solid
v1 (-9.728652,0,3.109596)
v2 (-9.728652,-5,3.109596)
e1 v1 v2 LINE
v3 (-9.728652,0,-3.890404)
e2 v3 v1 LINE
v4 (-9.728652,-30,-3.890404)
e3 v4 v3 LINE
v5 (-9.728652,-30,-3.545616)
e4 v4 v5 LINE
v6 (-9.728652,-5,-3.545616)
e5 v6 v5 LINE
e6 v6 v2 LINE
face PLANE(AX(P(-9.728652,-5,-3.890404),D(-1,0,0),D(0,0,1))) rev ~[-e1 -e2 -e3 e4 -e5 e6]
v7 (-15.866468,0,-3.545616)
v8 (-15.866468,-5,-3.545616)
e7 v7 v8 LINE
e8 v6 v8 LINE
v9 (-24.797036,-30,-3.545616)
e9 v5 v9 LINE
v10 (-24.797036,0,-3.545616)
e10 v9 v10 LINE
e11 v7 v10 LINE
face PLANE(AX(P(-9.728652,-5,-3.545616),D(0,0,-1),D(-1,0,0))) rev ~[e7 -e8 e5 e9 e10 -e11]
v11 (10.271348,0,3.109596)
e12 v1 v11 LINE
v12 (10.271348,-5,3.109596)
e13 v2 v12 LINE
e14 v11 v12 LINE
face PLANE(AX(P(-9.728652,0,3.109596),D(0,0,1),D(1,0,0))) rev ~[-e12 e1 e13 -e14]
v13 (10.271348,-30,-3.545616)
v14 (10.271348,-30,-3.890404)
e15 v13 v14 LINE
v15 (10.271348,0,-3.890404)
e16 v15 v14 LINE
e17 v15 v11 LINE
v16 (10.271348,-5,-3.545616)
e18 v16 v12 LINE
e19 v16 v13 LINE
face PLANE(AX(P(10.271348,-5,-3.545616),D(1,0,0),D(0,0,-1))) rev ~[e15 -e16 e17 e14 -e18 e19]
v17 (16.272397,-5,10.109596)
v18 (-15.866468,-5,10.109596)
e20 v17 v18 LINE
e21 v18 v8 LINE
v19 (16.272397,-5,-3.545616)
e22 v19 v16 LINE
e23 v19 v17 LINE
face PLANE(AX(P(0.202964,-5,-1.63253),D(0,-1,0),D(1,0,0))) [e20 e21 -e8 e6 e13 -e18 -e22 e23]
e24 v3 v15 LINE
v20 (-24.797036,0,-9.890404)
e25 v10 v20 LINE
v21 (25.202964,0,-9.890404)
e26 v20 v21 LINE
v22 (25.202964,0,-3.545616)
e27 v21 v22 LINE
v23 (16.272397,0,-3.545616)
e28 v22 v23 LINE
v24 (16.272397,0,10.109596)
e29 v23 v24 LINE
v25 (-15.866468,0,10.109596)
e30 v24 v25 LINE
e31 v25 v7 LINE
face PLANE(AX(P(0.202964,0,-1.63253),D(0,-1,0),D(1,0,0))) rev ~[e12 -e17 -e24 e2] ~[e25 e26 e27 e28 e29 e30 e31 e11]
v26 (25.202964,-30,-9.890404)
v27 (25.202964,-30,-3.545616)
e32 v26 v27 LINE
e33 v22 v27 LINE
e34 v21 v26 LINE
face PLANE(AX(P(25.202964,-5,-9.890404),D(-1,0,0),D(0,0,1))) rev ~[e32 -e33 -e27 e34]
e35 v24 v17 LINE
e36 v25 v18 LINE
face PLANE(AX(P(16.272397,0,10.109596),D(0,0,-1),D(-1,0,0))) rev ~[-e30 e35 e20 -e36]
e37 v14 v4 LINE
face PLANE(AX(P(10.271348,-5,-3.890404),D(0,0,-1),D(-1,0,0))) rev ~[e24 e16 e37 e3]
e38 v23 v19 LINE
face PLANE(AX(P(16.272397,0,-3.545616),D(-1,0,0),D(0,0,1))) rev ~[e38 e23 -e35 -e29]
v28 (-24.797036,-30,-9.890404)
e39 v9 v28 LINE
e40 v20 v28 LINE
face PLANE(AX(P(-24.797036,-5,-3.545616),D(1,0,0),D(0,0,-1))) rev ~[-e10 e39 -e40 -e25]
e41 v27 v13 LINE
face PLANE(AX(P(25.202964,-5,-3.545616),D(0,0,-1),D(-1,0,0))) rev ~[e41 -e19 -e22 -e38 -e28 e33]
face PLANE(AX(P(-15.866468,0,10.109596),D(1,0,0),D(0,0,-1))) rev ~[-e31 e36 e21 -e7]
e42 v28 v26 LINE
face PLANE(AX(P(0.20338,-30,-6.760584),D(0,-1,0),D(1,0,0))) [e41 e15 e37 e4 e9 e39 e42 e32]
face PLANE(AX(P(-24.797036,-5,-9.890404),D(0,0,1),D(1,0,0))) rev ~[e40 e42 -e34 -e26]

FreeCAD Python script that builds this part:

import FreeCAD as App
import Part
import Sketcher

V = App.Vector
Q = App.Units.Quantity


def add_polygon(sketch, points):
    """Adds a closed chain of lines whose ends are joined by coincident constraints."""
    first, n = sketch.GeometryCount, len(points)
    for a, b in zip(points, points[1:] + points[:1]):
        sketch.addGeometry(Part.LineSegment(App.Vector(*a, 0), App.Vector(*b, 0)), False)
    for i in range(n):
        sketch.addConstraint(Sketcher.Constraint("Coincident", first + i, 2, first + (i + 1) % n, 1))

doc = App.newDocument("Part")
params = doc.addObject("Spreadsheet::Sheet", "Params")
for row, (alias, value) in enumerate([
    ("sketch1_width", "50 mm"),
    ("sketch1_width2", "20 mm"),
    ("sketch1_height", "7 mm"),
    ("pad1_length", "5 mm"),
    ("sketch2_width", "50 mm"),
    ("sketch2_width2", "20 mm"),
    ("pad2_length", "25 mm"),
], start=1):
    params.set(f"A{row}", alias)
    params.set(f"B{row}", "=" + value)
    params.setAlias(f"B{row}", alias)

body = doc.addObject("PartDesign::Body", "Body")

sketch1 = doc.addObject("Sketcher::SketchObject", "Sketch")
body.addObject(sketch1)
sketch1.AttachmentSupport = (doc.XZ_Plane, [""])
sketch1.MapMode = "FlatFace"
add_polygon(sketch1, [(16, 10), (-16, 10), (-16, -4), (-25, -4), (-25, -10), (25, -10), (25, -4), (16, -4)])
add_polygon(sketch1, [(10, -4), (-10, -4), (-10, 3), (10, 3)])
sketch1.addConstraint([
    Sketcher.Constraint("Horizontal", 0),
    Sketcher.Constraint("Vertical", 1),
    Sketcher.Constraint("Horizontal", 2),
    Sketcher.Constraint("Vertical", 3),
    Sketcher.Constraint("Horizontal", 4),
    Sketcher.Constraint("Vertical", 5),
    Sketcher.Constraint("Horizontal", 6),
    Sketcher.Constraint("Vertical", 7),
    Sketcher.Constraint("Horizontal", 8),
    Sketcher.Constraint("Vertical", 9),
    Sketcher.Constraint("Horizontal", 10),
    Sketcher.Constraint("Vertical", 11),
    Sketcher.Constraint("Horizontal", 2, 2, 5, 2),
    Sketcher.Constraint("Equal", 2, 6),
    Sketcher.Constraint("DistanceX", 4, 1, 4, 2, Q("50 mm")),
    Sketcher.Constraint("DistanceX", 8, 2, 8, 1, Q("20 mm")),
    Sketcher.Constraint("DistanceY", 9, 1, 9, 2, Q("7 mm")),
    Sketcher.Constraint("DistanceY", 3, 2, 0, 2, Q("20 mm")),
    Sketcher.Constraint("DistanceY", 8, 2, 0, 2, Q("14 mm")),
    Sketcher.Constraint("DistanceY", 1, 2, 1, 1, Q("13.655212 mm")),
    Sketcher.Constraint("DistanceX", 0, 2, 0, 1, Q("32.138865 mm")),
    Sketcher.Constraint("DistanceX", 8, 2, 6, 2, Q("26.001049 mm")),
    Sketcher.Constraint("DistanceX", 0, 2, -1, 1, Q("15.866468 mm")),
    Sketcher.Constraint("DistanceY", -1, 1, 0, 2, Q("10.109596 mm")),
])
sketch1.setExpression("Constraints[26]", "Params.sketch1_width")
sketch1.setExpression("Constraints[27]", "Params.sketch1_width2")
sketch1.setExpression("Constraints[28]", "Params.sketch1_height")
pad1 = doc.addObject("PartDesign::Pad", "Pad")
body.addObject(pad1)
pad1.Profile = sketch1
pad1.setExpression("Length", "Params.pad1_length")

sketch2 = doc.addObject("Sketcher::SketchObject", "Sketch001")
body.addObject(sketch2)
sketch2.AttachmentSupport = (doc.XZ_Plane, [""])
sketch2.MapMode = "FlatFace"
sketch2.AttachmentOffset = App.Placement(V(0, 0, 5), App.Rotation())
add_polygon(sketch2, [(-24.8, -3.55), (-24.8, -9.89), (25.2, -9.89), (25.2, -3.55), (10.27, -3.55), (10.27, -3.89), (-9.73, -3.89), (-9.73, -3.55)])
sketch2.addConstraint([
    Sketcher.Constraint("Vertical", 0),
    Sketcher.Constraint("Horizontal", 1),
    Sketcher.Constraint("Vertical", 2),
    Sketcher.Constraint("Horizontal", 3),
    Sketcher.Constraint("Vertical", 4),
    Sketcher.Constraint("Horizontal", 5),
    Sketcher.Constraint("Vertical", 6),
    Sketcher.Constraint("Horizontal", 7),
    Sketcher.Constraint("Horizontal", 3, 2, 6, 2),
    Sketcher.Constraint("DistanceX", 1, 1, 1, 2, Q("50 mm")),
    Sketcher.Constraint("DistanceX", 5, 2, 5, 1, Q("20 mm")),
    Sketcher.Constraint("DistanceY", 1, 2, 4, 2, Q("6 mm")),
    Sketcher.Constraint("DistanceY", 0, 2, 0, 1, Q("6.344788 mm")),
    Sketcher.Constraint("DistanceX", 3, 2, 3, 1, Q("14.931616 mm")),
    Sketcher.Constraint("DistanceX", 0, 2, -1, 1, Q("24.797036 mm")),
    Sketcher.Constraint("DistanceY", 0, 2, -1, 1, Q("9.890404 mm")),
])
sketch2.setExpression("Constraints[17]", "Params.sketch2_width")
sketch2.setExpression("Constraints[18]", "Params.sketch2_width2")
pad2 = doc.addObject("PartDesign::Pad", "Pad001")
body.addObject(pad2)
pad2.Profile = sketch2
pad2.setExpression("Length", "Params.pad2_length")

doc.recompute()
